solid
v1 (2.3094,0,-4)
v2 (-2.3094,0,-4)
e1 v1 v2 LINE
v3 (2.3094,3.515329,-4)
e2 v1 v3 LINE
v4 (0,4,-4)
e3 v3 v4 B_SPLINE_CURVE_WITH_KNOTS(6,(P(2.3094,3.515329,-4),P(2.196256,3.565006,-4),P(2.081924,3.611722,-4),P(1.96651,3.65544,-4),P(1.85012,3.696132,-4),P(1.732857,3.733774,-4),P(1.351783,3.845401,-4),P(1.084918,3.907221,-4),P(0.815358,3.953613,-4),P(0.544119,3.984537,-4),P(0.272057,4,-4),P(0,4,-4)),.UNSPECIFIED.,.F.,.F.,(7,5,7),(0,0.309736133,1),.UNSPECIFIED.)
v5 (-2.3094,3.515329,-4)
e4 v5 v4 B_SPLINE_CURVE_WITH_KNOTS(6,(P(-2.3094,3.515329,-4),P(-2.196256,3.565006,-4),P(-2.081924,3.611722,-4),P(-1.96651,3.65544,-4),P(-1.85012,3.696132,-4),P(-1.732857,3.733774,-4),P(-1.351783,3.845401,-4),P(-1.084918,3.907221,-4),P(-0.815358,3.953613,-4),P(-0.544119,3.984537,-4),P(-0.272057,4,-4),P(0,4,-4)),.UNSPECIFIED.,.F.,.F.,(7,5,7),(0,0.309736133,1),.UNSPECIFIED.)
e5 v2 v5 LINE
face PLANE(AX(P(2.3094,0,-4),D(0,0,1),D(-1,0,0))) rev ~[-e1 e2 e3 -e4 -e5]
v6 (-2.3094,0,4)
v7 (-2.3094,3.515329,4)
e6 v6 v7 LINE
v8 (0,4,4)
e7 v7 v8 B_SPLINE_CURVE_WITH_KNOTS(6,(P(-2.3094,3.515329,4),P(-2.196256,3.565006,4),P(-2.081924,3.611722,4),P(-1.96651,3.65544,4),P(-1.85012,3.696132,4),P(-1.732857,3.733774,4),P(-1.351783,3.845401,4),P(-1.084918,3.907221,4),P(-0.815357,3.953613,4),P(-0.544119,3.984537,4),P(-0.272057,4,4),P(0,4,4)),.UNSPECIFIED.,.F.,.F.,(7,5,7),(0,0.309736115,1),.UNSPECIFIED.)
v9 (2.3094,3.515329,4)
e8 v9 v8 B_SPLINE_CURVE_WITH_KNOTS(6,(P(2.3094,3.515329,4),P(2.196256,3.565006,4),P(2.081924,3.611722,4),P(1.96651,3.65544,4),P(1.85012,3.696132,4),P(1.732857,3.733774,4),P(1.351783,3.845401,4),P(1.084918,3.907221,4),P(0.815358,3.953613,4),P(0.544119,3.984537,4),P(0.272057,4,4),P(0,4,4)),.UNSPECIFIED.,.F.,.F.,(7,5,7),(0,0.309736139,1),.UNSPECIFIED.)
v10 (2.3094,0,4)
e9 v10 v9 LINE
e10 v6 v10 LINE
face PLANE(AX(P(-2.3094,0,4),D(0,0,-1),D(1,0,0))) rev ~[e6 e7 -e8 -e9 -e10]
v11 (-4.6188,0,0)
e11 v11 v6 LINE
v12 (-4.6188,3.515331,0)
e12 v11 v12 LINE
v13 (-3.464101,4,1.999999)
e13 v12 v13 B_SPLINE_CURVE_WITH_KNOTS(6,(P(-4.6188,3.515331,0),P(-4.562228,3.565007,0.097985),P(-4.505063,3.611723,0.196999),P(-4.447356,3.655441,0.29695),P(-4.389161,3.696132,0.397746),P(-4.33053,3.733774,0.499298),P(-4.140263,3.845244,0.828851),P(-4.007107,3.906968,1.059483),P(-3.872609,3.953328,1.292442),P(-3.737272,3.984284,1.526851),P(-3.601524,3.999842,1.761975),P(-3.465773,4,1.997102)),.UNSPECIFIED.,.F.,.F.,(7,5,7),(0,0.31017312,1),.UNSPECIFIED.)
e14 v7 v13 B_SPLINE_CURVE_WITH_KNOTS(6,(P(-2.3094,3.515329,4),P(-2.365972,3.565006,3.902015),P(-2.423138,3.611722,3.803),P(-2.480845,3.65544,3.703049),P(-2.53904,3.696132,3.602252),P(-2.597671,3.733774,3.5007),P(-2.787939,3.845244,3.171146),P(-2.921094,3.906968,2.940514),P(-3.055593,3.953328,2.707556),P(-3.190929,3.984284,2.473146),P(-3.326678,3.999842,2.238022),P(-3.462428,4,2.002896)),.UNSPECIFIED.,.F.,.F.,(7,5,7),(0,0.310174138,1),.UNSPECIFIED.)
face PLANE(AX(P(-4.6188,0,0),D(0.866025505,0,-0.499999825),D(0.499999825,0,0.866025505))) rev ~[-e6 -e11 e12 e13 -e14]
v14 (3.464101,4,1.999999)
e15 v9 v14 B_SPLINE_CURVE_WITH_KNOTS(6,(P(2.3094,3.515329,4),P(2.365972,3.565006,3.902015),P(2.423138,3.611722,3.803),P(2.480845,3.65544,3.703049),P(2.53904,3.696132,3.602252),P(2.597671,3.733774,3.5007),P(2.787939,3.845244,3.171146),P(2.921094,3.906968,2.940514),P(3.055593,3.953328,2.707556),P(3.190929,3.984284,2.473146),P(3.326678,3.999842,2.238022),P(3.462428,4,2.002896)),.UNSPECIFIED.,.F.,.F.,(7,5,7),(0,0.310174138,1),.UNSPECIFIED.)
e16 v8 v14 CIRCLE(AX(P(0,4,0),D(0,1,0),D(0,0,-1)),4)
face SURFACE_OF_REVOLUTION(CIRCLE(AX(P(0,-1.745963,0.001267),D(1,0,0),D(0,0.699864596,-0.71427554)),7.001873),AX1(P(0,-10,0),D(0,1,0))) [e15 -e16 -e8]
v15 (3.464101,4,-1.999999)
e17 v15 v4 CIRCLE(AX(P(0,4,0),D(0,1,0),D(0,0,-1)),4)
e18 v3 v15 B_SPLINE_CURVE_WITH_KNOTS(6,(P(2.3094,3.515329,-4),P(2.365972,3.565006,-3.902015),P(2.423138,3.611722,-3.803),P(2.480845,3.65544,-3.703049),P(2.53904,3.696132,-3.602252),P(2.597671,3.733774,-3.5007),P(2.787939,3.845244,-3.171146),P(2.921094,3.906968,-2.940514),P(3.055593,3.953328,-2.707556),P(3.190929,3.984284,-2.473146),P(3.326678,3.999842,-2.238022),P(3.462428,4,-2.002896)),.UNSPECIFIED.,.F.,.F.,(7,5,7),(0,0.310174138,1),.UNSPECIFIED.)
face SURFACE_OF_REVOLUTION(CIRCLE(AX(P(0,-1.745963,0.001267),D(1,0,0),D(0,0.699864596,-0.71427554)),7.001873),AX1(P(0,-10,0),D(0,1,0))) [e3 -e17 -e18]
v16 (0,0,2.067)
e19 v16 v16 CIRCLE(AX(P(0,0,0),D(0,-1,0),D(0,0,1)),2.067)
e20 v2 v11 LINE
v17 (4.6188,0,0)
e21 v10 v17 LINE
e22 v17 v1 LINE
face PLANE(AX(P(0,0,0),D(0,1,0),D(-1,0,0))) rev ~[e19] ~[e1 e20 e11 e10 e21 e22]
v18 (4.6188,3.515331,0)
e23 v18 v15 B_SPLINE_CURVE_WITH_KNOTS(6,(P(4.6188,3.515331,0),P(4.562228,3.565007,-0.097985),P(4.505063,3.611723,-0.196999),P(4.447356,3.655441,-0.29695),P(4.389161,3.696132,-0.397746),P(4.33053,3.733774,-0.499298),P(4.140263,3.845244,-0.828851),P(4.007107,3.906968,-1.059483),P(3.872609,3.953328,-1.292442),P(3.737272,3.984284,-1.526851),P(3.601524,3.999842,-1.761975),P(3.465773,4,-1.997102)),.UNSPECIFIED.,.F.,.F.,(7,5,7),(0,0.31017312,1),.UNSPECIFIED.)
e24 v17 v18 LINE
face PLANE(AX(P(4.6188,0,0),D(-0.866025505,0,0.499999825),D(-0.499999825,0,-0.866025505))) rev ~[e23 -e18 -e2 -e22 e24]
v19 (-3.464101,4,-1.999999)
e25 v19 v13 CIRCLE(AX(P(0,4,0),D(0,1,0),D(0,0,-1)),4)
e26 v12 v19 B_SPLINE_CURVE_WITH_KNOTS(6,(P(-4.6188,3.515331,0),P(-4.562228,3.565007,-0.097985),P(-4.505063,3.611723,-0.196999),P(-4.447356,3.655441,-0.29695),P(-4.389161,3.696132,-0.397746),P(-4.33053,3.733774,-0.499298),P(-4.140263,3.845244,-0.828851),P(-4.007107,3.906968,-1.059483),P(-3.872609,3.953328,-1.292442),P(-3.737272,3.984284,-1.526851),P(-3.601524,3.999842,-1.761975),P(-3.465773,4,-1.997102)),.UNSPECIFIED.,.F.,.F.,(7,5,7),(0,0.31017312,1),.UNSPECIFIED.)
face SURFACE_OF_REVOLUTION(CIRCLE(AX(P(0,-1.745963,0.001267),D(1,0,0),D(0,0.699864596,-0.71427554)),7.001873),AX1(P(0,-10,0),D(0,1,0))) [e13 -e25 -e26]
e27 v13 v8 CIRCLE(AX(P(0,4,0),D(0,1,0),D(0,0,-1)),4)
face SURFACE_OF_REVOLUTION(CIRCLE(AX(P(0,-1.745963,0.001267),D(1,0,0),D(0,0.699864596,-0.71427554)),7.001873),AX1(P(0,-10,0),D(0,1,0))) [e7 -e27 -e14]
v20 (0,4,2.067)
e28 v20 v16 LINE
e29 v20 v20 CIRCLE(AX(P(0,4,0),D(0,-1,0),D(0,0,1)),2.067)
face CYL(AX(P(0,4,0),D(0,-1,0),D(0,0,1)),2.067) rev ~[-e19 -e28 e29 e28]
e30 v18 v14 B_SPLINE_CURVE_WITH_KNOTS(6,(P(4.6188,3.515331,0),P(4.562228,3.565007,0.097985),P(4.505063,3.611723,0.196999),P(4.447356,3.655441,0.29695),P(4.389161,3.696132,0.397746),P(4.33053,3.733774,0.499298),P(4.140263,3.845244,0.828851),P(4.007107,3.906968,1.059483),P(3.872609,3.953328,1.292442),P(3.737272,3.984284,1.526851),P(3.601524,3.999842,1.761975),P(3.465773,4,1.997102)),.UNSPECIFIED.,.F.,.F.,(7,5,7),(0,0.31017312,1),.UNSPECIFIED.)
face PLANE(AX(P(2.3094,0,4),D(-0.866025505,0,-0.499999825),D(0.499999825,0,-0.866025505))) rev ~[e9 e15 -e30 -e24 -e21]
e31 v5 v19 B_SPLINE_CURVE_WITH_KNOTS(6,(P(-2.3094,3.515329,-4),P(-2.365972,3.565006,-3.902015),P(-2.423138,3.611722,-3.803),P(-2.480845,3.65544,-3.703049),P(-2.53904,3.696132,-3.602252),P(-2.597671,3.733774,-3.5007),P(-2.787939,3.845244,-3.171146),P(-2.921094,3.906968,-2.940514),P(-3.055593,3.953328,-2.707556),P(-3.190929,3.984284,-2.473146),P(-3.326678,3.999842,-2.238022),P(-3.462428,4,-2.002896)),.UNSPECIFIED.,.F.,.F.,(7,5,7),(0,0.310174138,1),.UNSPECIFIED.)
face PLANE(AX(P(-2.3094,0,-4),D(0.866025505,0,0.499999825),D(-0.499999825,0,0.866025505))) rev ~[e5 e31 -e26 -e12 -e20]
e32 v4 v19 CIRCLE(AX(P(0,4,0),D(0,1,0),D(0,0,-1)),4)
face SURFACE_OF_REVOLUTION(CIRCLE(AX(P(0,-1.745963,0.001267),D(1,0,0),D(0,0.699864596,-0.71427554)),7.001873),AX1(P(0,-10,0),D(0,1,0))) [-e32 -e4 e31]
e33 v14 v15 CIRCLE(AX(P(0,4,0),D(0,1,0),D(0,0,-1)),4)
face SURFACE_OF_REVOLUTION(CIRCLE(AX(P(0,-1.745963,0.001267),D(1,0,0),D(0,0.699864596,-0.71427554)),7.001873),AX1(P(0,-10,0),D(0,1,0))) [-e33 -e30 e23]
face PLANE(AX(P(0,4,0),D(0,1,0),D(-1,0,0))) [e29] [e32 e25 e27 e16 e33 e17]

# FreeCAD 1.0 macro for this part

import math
import FreeCAD as App
import Part
import Sketcher
from FreeCAD import Vector
Q = App.Units.Quantity

doc = App.newDocument("Part")
body = doc.addObject("PartDesign::Body", "Body")

# Sketch on XZ plane
sketch1 = body.newObject("Sketcher::SketchObject", "Sketch")
sketch1.AttachmentSupport = (doc.getObject("XZ_Plane"), [""])
sketch1.MapMode = "FlatFace"
sketch1.addGeometry(Part.LineSegment(Vector(-2.3094, -4, 0), Vector(-4.6188, 0, 0)), False)
sketch1.addGeometry(Part.LineSegment(Vector(-4.6188, 0, 0), Vector(-2.3094, 4, 0)), False)
sketch1.addGeometry(Part.LineSegment(Vector(-2.3094, 4, 0), Vector(2.3094, 4, 0)), False)
sketch1.addGeometry(Part.LineSegment(Vector(2.3094, 4, 0), Vector(4.6188, 0, 0)), False)
sketch1.addGeometry(Part.LineSegment(Vector(4.6188, 0, 0), Vector(2.3094, -4, 0)), False)
sketch1.addGeometry(Part.LineSegment(Vector(2.3094, -4, 0), Vector(-2.3094, -4, 0)), False)
sketch1.addConstraint(Sketcher.Constraint("Coincident", 0, 2, 1, 1))
sketch1.addConstraint(Sketcher.Constraint("Coincident", 1, 2, 2, 1))
sketch1.addConstraint(Sketcher.Constraint("Coincident", 2, 2, 3, 1))
sketch1.addConstraint(Sketcher.Constraint("Coincident", 3, 2, 4, 1))
sketch1.addConstraint(Sketcher.Constraint("Coincident", 4, 2, 5, 1))
sketch1.addConstraint(Sketcher.Constraint("Coincident", 5, 2, 0, 1))
sketch1.addConstraint(Sketcher.Constraint("Horizontal", 2))
sketch1.addConstraint(Sketcher.Constraint("Horizontal", 5))
sketch1.addConstraint(Sketcher.Constraint("Symmetric", 0, 2, 3, 2, -1, 1))
sketch1.addConstraint(Sketcher.Constraint("Symmetric", 1, 2, 4, 2, -1, 1))
sketch1.addConstraint(Sketcher.Constraint("PointOnObject", 0, 2, -1))
sketch1.addConstraint(Sketcher.Constraint("Parallel", 0, 3))
sketch1.addConstraint(Sketcher.Constraint("Vertical", 2, 2, 4, 2))
sketch1.addConstraint(Sketcher.Constraint("DistanceY", 4, 2, 2, 2, Q("8 mm")))
sketch1.addConstraint(Sketcher.Constraint("Angle", 0, Q("120 deg")))
sketch1.addConstraint(Sketcher.Constraint("DistanceX", 2, 1, 2, 2, Q("4.6188 mm")))
pad1 = body.newObject("PartDesign::Pad", "Pad")
pad1.Profile = sketch1
pad1.Length = 4
pad1.Reversed = True

# Sketch on XZ plane
sketch2 = body.newObject("Sketcher::SketchObject", "Sketch001")
sketch2.AttachmentSupport = (doc.getObject("XZ_Plane"), [""])
sketch2.MapMode = "FlatFace"
sketch2.AttachmentOffset = App.Placement(Vector(0, 0, -4), App.Rotation())
sketch2.addGeometry(Part.Circle(Vector(0, 0, 0), Vector(0, 0, 1), 2.067), False)
sketch2.addConstraint(Sketcher.Constraint("Coincident", 0, 3, -1, 1))
sketch2.addConstraint(Sketcher.Constraint("Diameter", 0, Q("4.134 mm")))
doc.recompute()
hole = body.newObject("PartDesign::Hole", "Hole")
hole.Profile = sketch2
hole.ThreadType = "None"
hole.Diameter = 4.134
hole.DepthType = "ThroughAll"
hole.Reversed = True

# Sketch on YZ plane
sketch3 = body.newObject("Sketcher::SketchObject", "Sketch002")
sketch3.AttachmentSupport = (doc.getObject("YZ_Plane"), [""])
sketch3.MapMode = "FlatFace"
sketch3.addGeometry(Part.ArcOfCircle(Part.Circle(Vector(-1.745963, 0.001267, 0), Vector(0, 0, 1), 7.001873), math.radians(-45.583858), math.radians(-34.851863)), False)
sketch3.addGeometry(Part.LineSegment(Vector(3.1544, -5, 0), Vector(4, -5, 0)), False)
sketch3.addGeometry(Part.LineSegment(Vector(4, -5, 0), Vector(4, -4, 0)), False)
sketch3.addConstraint(Sketcher.Constraint("Coincident", 0, 1, 1, 1))
sketch3.addConstraint(Sketcher.Constraint("Coincident", 1, 2, 2, 1))
sketch3.addConstraint(Sketcher.Constraint("Coincident", 2, 2, 0, 2))
sketch3.addConstraint(Sketcher.Constraint("Horizontal", 1))
sketch3.addConstraint(Sketcher.Constraint("Vertical", 2))
sketch3.addConstraint(Sketcher.Constraint("DistanceY", 2, 1, 2, 2, Q("1 mm")))
sketch3.addConstraint(Sketcher.Constraint("DistanceX", -1, 1, 1, 2, Q("4 mm")))
sketch3.addConstraint(Sketcher.Constraint("DistanceY", 2, 2, -1, 1, Q("4 mm")))
sketch3.addConstraint(Sketcher.Constraint("Radius", 0, Q("7.0019 mm")))
sketch3.addConstraint(Sketcher.Constraint("DistanceX", 1, 1, 1, 2, Q("0.8456 mm")))
groove = body.newObject("PartDesign::Groove", "Groove")
groove.Profile = sketch3
groove.ReferenceAxis = (sketch3, ["H_Axis"])
groove.Angle = 360

doc.recompute()
